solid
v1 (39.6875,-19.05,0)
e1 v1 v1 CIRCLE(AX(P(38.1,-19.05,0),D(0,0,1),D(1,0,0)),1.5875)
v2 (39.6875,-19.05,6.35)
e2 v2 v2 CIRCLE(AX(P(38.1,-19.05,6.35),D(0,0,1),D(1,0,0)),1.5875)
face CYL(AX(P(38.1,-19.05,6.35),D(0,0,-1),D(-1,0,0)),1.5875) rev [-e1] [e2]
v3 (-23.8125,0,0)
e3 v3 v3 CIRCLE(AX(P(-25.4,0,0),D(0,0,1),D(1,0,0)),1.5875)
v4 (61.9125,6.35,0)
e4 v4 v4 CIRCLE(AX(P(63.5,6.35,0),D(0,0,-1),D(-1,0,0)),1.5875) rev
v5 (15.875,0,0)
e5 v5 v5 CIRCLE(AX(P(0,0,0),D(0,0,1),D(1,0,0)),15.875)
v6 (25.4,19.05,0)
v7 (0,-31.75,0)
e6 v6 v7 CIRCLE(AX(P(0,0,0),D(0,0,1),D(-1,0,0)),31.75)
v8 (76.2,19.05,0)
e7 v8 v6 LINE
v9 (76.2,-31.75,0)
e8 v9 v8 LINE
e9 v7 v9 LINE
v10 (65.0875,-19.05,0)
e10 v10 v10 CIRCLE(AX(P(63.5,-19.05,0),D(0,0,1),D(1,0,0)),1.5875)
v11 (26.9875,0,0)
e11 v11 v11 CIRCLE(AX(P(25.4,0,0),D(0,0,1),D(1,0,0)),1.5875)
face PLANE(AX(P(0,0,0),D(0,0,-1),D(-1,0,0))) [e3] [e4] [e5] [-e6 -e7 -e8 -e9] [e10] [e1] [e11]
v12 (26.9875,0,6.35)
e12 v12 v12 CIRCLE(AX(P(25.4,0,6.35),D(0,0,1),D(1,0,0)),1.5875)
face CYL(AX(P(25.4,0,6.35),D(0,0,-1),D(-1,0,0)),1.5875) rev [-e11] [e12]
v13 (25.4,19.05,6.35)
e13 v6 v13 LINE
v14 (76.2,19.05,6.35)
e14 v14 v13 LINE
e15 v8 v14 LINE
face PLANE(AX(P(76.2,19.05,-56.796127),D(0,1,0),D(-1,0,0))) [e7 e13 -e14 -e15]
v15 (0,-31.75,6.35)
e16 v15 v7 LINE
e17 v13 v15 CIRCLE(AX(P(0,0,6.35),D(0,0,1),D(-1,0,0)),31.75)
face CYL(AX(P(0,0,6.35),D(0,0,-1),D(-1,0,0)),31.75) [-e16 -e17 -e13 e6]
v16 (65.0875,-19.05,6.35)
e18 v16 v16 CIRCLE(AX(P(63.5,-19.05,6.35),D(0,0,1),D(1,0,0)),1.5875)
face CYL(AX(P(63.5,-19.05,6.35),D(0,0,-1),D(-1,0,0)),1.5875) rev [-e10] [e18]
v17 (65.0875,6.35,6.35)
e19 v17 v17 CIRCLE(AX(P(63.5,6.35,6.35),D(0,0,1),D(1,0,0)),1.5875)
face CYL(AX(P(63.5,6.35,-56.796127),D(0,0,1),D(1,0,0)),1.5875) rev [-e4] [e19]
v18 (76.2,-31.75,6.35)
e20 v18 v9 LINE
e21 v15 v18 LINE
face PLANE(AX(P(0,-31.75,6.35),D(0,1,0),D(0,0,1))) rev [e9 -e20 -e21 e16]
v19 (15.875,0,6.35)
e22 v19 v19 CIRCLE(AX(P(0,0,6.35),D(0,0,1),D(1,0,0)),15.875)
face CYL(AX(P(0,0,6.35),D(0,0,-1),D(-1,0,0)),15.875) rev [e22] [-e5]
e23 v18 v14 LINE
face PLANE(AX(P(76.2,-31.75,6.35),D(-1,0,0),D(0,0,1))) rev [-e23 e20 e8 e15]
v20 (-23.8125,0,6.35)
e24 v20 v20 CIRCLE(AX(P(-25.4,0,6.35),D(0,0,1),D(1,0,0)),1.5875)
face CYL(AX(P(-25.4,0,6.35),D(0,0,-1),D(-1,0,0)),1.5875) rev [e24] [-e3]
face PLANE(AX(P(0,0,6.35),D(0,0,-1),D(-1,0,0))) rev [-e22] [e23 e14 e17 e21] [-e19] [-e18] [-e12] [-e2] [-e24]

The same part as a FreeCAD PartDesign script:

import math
import FreeCAD as App
import Part
import Sketcher
Q = App.Units.Quantity

doc = App.newDocument("Part")
params = doc.addObject("Spreadsheet::Sheet", "Params")
for row, (alias, value) in enumerate([
    ("sketch1_diameter", "1.25 in"),
    ("sketch1_width", "3 in"),
    ("sketch1_height", "1 in"),
    ("sketch1_radius", "1.25 in"),
    ("sketch1_diameter2", "0.125 in"),
    ("pad1_length", "0.25 in"),
    ("sketch2_width", "2 in"),
    ("sketch2_height", "1 in"),
    ("sketch2_radius", "1.25 in"),
    ("sketch2_diameter", "0.125 in"),
    ("pad2_length", "0.25 in"),
], start=1):
    params.set(f"A{row}", alias)
    params.set(f"B{row}", "=" + value)
    params.setAlias(f"B{row}", alias)

body = doc.addObject("PartDesign::Body", "Body")

# Sketch on XY plane
sketch1 = body.newObject("Sketcher::SketchObject", "Sketch")
sketch1.AttachmentSupport = (doc.getObject("XY_Plane"), [""])
sketch1.MapMode = "FlatFace"
sketch1.addGeometry(Part.LineSegment(App.Vector(0, -31.8, 0), App.Vector(76.2, -31.8, 0)), False)
sketch1.addGeometry(Part.LineSegment(App.Vector(76.2, -31.8, 0), App.Vector(76.2, -6.3, 0)), False)
sketch1.addGeometry(Part.LineSegment(App.Vector(76.2, -6.3, 0), App.Vector(31.1, -6.3, 0)), False)
sketch1.addGeometry(Part.ArcOfCircle(Part.Circle(App.Vector(0, 0, 0), App.Vector(0, 0, 1), 31.8), math.radians(-12), math.radians(270)), False)
sketch1.addGeometry(Part.Circle(App.Vector(38.1, -19.1, 0), App.Vector(0, 0, 1), 1.6), False)
sketch1.addGeometry(Part.Circle(App.Vector(63.5, -19.1, 0), App.Vector(0, 0, 1), 1.6), False)
sketch1.addGeometry(Part.Circle(App.Vector(-25.4, 0, 0), App.Vector(0, 0, 1), 1.6), False)
sketch1.addGeometry(Part.Circle(App.Vector(0, 0, 0), App.Vector(0, 0, 1), 15.9), False)
sketch1.addGeometry(Part.Circle(App.Vector(25.4, 0, 0), App.Vector(0, 0, 1), 1.6), False)
sketch1.addConstraint(Sketcher.Constraint("Coincident", 0, 2, 1, 1))
sketch1.addConstraint(Sketcher.Constraint("Coincident", 1, 2, 2, 1))
sketch1.addConstraint(Sketcher.Constraint("Coincident", 2, 2, 3, 1))
sketch1.addConstraint(Sketcher.Constraint("Tangent", 3, 2, 0, 1))
sketch1.addConstraint(Sketcher.Constraint("Horizontal", 0))
sketch1.addConstraint(Sketcher.Constraint("Vertical", 1))
sketch1.addConstraint(Sketcher.Constraint("Horizontal", 2))
sketch1.addConstraint(Sketcher.Constraint("Coincident", 3, 3, -1, 1))
sketch1.addConstraint(Sketcher.Constraint("Coincident", 7, 3, -1, 1))
sketch1.addConstraint(Sketcher.Constraint("Equal", 4, 5))
sketch1.addConstraint(Sketcher.Constraint("Equal", 5, 6))
sketch1.addConstraint(Sketcher.Constraint("Equal", 6, 8))
sketch1.addConstraint(Sketcher.Constraint("Symmetric", 6, 3, 8, 3, -1, 1))
sketch1.addConstraint(Sketcher.Constraint("PointOnObject", 6, 3, -1))
sketch1.addConstraint(Sketcher.Constraint("Horizontal", 4, 3, 5, 3))
sketch1.addConstraint(Sketcher.Constraint("Diameter", 7, Q("1.25 in")))
sketch1.addConstraint(Sketcher.Constraint("DistanceX", 0, 1, 0, 2, Q("3 in")))
sketch1.addConstraint(Sketcher.Constraint("DistanceY", 1, 1, 1, 2, Q("1 in")))
sketch1.addConstraint(Sketcher.Constraint("Radius", 3, Q("1.25 in")))
sketch1.addConstraint(Sketcher.Constraint("Diameter", 4, Q("0.125 in")))
sketch1.addConstraint(Sketcher.Constraint("DistanceX", 6, 3, -1, 1, Q("1 in")))
sketch1.addConstraint(Sketcher.Constraint("DistanceX", 4, 3, 5, 3, Q("1 in")))
sketch1.addConstraint(Sketcher.Constraint("DistanceX", -1, 1, 4, 3, Q("1.5 in")))
sketch1.addConstraint(Sketcher.Constraint("DistanceY", 0, 2, 5, 3, Q("0.5 in")))
sketch1.setExpression("Constraints[15]", "Params.sketch1_diameter")
sketch1.setExpression("Constraints[16]", "Params.sketch1_width")
sketch1.setExpression("Constraints[17]", "Params.sketch1_height")
sketch1.setExpression("Constraints[18]", "Params.sketch1_radius")
sketch1.setExpression("Constraints[19]", "Params.sketch1_diameter2")
pad1 = body.newObject("PartDesign::Pad", "Pad")
pad1.Profile = sketch1
pad1.setExpression("Length", "Params.pad1_length")

# Sketch on XY plane
sketch2 = body.newObject("Sketcher::SketchObject", "Sketch001")
sketch2.AttachmentSupport = (doc.getObject("XY_Plane"), [""])
sketch2.MapMode = "FlatFace"
sketch2.addGeometry(Part.LineSegment(App.Vector(76.2, -6.3, 0), App.Vector(76.2, 19.1, 0)), False)
sketch2.addGeometry(Part.LineSegment(App.Vector(76.2, 19.1, 0), App.Vector(25.4, 19.1, 0)), False)
sketch2.addGeometry(Part.ArcOfCircle(Part.Circle(App.Vector(0, 0, 0), App.Vector(0, 0, 1), 31.8), math.radians(-12), math.radians(37)), False)
sketch2.addGeometry(Part.LineSegment(App.Vector(31.1, -6.3, 0), App.Vector(76.2, -6.3, 0)), False)
sketch2.addGeometry(Part.Circle(App.Vector(63.5, 6.3, 0), App.Vector(0, 0, 1), 1.6), False)
sketch2.addConstraint(Sketcher.Constraint("Coincident", 0, 2, 1, 1))
sketch2.addConstraint(Sketcher.Constraint("Coincident", 1, 2, 2, 2))
sketch2.addConstraint(Sketcher.Constraint("Coincident", 2, 1, 3, 1))
sketch2.addConstraint(Sketcher.Constraint("Coincident", 3, 2, 0, 1))
sketch2.addConstraint(Sketcher.Constraint("Vertical", 0))
sketch2.addConstraint(Sketcher.Constraint("Horizontal", 1))
sketch2.addConstraint(Sketcher.Constraint("Horizontal", 3))
sketch2.addConstraint(Sketcher.Constraint("Coincident", 2, 3, -1, 1))
sketch2.addConstraint(Sketcher.Constraint("DistanceX", 1, 2, 1, 1, Q("2 in")))
sketch2.addConstraint(Sketcher.Constraint("DistanceY", 0, 1, 0, 2, Q("1 in")))
sketch2.addConstraint(Sketcher.Constraint("Radius", 2, Q("1.25 in")))
sketch2.addConstraint(Sketcher.Constraint("Diameter", 4, Q("0.125 in")))
sketch2.addConstraint(Sketcher.Constraint("DistanceX", -1, 1, 0, 2, Q("3 in")))
sketch2.addConstraint(Sketcher.Constraint("DistanceX", -1, 1, 4, 3, Q("2.5 in")))
sketch2.addConstraint(Sketcher.Constraint("DistanceY", 4, 3, 0, 2, Q("0.5 in")))
sketch2.setExpression("Constraints[8]", "Params.sketch2_width")
sketch2.setExpression("Constraints[9]", "Params.sketch2_height")
sketch2.setExpression("Constraints[10]", "Params.sketch2_radius")
sketch2.setExpression("Constraints[11]", "Params.sketch2_diameter")
pad2 = body.newObject("PartDesign::Pad", "Pad001")
pad2.Profile = sketch2
pad2.setExpression("Length", "Params.pad2_length")

doc.recompute()
